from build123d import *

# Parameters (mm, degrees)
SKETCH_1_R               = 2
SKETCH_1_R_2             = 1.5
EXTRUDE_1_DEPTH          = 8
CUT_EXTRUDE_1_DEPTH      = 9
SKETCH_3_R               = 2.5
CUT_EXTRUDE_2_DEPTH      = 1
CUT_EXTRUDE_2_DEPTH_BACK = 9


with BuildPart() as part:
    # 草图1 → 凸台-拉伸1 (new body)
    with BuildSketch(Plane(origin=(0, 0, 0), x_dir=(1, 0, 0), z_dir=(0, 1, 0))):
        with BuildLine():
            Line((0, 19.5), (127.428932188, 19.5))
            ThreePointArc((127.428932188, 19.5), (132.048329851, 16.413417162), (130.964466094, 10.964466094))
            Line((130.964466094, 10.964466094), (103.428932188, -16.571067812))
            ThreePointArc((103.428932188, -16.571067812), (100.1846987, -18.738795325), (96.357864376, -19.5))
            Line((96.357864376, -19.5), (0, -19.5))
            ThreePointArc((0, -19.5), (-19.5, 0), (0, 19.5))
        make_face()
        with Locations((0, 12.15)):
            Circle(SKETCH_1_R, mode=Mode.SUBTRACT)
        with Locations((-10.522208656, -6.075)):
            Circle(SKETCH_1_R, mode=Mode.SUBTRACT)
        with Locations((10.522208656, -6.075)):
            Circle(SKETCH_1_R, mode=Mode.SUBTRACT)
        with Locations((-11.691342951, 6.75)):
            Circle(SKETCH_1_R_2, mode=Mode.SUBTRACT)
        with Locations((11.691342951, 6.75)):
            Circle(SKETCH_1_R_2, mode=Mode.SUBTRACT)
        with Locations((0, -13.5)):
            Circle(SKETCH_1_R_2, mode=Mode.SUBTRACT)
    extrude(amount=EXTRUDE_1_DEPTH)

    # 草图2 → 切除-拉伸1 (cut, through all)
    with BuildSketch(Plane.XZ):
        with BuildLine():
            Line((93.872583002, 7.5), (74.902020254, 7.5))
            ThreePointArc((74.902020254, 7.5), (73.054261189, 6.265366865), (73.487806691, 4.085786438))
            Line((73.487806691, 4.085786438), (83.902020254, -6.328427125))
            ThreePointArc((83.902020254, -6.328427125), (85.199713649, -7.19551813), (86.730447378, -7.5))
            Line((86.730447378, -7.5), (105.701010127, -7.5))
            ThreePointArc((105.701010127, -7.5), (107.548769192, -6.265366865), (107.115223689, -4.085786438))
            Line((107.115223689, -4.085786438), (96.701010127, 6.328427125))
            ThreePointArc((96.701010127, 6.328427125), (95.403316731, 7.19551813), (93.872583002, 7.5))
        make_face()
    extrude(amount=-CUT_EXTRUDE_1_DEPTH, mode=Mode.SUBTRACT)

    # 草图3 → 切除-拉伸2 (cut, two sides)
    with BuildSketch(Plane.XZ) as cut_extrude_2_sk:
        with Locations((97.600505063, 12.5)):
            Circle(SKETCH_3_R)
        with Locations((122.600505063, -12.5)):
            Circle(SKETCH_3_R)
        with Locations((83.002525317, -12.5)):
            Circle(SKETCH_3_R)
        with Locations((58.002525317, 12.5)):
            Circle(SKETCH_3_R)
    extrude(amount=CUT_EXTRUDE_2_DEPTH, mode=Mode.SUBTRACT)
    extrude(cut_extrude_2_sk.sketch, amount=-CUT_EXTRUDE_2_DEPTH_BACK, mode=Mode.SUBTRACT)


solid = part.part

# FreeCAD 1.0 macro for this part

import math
import FreeCAD as App
import Part
import Sketcher
Q = App.Units.Quantity

doc = App.newDocument("Part")
body = doc.addObject("PartDesign::Body", "Body")

sketch1 = body.newObject("Sketcher::SketchObject", "Sketch")
sketch1.AttachmentSupport = (doc.getObject("XZ_Plane"), [""])
sketch1.MapMode = "FlatFace"
sketch1.addGeometry([
    Part.LineSegment(App.Vector(127.428932, -19.5, 0), App.Vector(0, -19.5, 0)),
    Part.ArcOfCircle(Part.Circle(App.Vector(0, 0, 0), App.Vector(0, 0, 1), 19.5), math.radians(90), math.radians(270)),
    Part.LineSegment(App.Vector(0, 19.5, 0), App.Vector(96.357864, 19.5, 0)),
    Part.ArcOfCircle(Part.Circle(App.Vector(96.357864, 9.5, 0), App.Vector(0, 0, 1), 10), math.radians(45), math.radians(90)),
    Part.LineSegment(App.Vector(103.428932, 16.571068, 0), App.Vector(130.964466, -10.964466, 0)),
    Part.ArcOfCircle(Part.Circle(App.Vector(127.428932, -14.5, 0), App.Vector(0, 0, 1), 5), math.radians(-90), math.radians(45)),
    Part.Circle(App.Vector(10.522209, 6.075, 0), App.Vector(0, 0, 1), 2),
    Part.Circle(App.Vector(0, 13.5, 0), App.Vector(0, 0, 1), 1.5),
    Part.Circle(App.Vector(-10.522209, 6.075, 0), App.Vector(0, 0, 1), 2),
    Part.Circle(App.Vector(11.691343, -6.75, 0), App.Vector(0, 0, 1), 1.5),
    Part.Circle(App.Vector(-11.691343, -6.75, 0), App.Vector(0, 0, 1), 1.5),
    Part.Circle(App.Vector(0, -12.15, 0), App.Vector(0, 0, 1), 2),
], False)
sketch1.addConstraint([
    Sketcher.Constraint("Tangent", 0, 2, 1, 2),
    Sketcher.Constraint("Tangent", 1, 1, 2, 1),
    Sketcher.Constraint("Tangent", 2, 2, 3, 2),
    Sketcher.Constraint("Tangent", 3, 1, 4, 1),
    Sketcher.Constraint("Tangent", 4, 2, 5, 2),
    Sketcher.Constraint("Tangent", 5, 1, 0, 1),
    Sketcher.Constraint("Horizontal", 0),
    Sketcher.Constraint("Horizontal", 2),
    Sketcher.Constraint("Coincident", 1, 3, -1, 1),
    Sketcher.Constraint("Equal", 6, 8),
    Sketcher.Constraint("Equal", 7, 9),
    Sketcher.Constraint("Equal", 9, 10),
    Sketcher.Constraint("Equal", 8, 11),
    Sketcher.Constraint("Symmetric", 6, 3, 8, 3, -2),
    Sketcher.Constraint("Symmetric", 9, 3, 10, 3, -2),
    Sketcher.Constraint("PointOnObject", 7, 3, -2),
    Sketcher.Constraint("PointOnObject", 11, 3, -2),
    Sketcher.Constraint("Diameter", 6, Q("4 mm")),
    Sketcher.Constraint("Diameter", 7, Q("3 mm")),
    Sketcher.Constraint("Radius", 3, Q("10 mm")),
    Sketcher.Constraint("Radius", 5, Q("5 mm")),
    Sketcher.Constraint("Radius", 1, Q("19.5 mm")),
    Sketcher.Constraint("Angle", 4, Q("-45 deg")),
    Sketcher.Constraint("DistanceY", 3, 3, 7, 3, Q("4 mm")),
    Sketcher.Constraint("DistanceY", 11, 3, 9, 3, Q("5.4 mm")),
    Sketcher.Constraint("DistanceY", 9, 3, -1, 1, Q("6.75 mm")),
    Sketcher.Constraint("DistanceY", -1, 1, 6, 3, Q("6.075 mm")),
    Sketcher.Constraint("DistanceX", 0, 2, 0, 1, Q("127.428932 mm")),
    Sketcher.Constraint("DistanceX", -1, 1, 6, 3, Q("10.522209 mm")),
    Sketcher.Constraint("DistanceX", 8, 3, 9, 3, Q("22.213552 mm")),
])
pad1 = body.newObject("PartDesign::Pad", "Pad")
pad1.Profile = sketch1
pad1.Length = 8
pad1.Reversed = True

sketch2 = body.newObject("Sketcher::SketchObject", "Sketch001")
sketch2.AttachmentSupport = (doc.getObject("XZ_Plane"), [""])
sketch2.MapMode = "FlatFace"
sketch2.addGeometry([
    Part.LineSegment(App.Vector(93.872583, 7.5, 0), App.Vector(74.90202, 7.5, 0)),
    Part.ArcOfCircle(Part.Circle(App.Vector(74.90202, 5.5, 0), App.Vector(0, 0, 1), 2), math.radians(90), math.radians(225)),
    Part.LineSegment(App.Vector(73.487807, 4.085786, 0), App.Vector(83.90202, -6.328427, 0)),
    Part.ArcOfCircle(Part.Circle(App.Vector(86.730447, -3.5, 0), App.Vector(0, 0, 1), 4), math.radians(-135), math.radians(-90)),
    Part.LineSegment(App.Vector(86.730447, -7.5, 0), App.Vector(105.70101, -7.5, 0)),
    Part.ArcOfCircle(Part.Circle(App.Vector(105.70101, -5.5, 0), App.Vector(0, 0, 1), 2), math.radians(-90), math.radians(45)),
    Part.LineSegment(App.Vector(107.115224, -4.085786, 0), App.Vector(96.70101, 6.328427, 0)),
    Part.ArcOfCircle(Part.Circle(App.Vector(93.872583, 3.5, 0), App.Vector(0, 0, 1), 4), math.radians(45), math.radians(90)),
], False)
sketch2.addConstraint([
    Sketcher.Constraint("Tangent", 0, 2, 1, 1),
    Sketcher.Constraint("Tangent", 1, 2, 2, 1),
    Sketcher.Constraint("Tangent", 2, 2, 3, 1),
    Sketcher.Constraint("Tangent", 3, 2, 4, 1),
    Sketcher.Constraint("Tangent", 4, 2, 5, 1),
    Sketcher.Constraint("Tangent", 5, 2, 6, 1),
    Sketcher.Constraint("Tangent", 6, 2, 7, 1),
    Sketcher.Constraint("Tangent", 7, 2, 0, 1),
    Sketcher.Constraint("Horizontal", 0),
    Sketcher.Constraint("Horizontal", 4),
    Sketcher.Constraint("Equal", 1, 5),
    Sketcher.Constraint("Equal", 3, 7),
    Sketcher.Constraint("Parallel", 2, 6),
    Sketcher.Constraint("Radius", 1, Q("2 mm")),
    Sketcher.Constraint("Radius", 3, Q("4 mm")),
    Sketcher.Constraint("Angle", 2, Q("-45 deg")),
    Sketcher.Constraint("DistanceY", 3, 3, 1, 3, Q("9 mm")),
    Sketcher.Constraint("DistanceY", -1, 1, 1, 3, Q("5.5 mm")),
    Sketcher.Constraint("DistanceX", 0, 2, 0, 1, Q("18.970563 mm")),
    Sketcher.Constraint("DistanceX", -1, 1, 1, 3, Q("74.90202 mm")),
])
pocket1 = body.newObject("PartDesign::Pocket", "Pocket")
pocket1.Profile = sketch2
pocket1.Type = "ThroughAll"

sketch3 = body.newObject("Sketcher::SketchObject", "Sketch002")
sketch3.AttachmentSupport = (doc.getObject("XZ_Plane"), [""])
sketch3.MapMode = "FlatFace"
sketch3.addGeometry([
    Part.Circle(App.Vector(97.600505, 12.5, 0), App.Vector(0, 0, 1), 2.5),
    Part.Circle(App.Vector(122.600505, -12.5, 0), App.Vector(0, 0, 1), 2.5),
    Part.Circle(App.Vector(83.002525, -12.5, 0), App.Vector(0, 0, 1), 2.5),
    Part.Circle(App.Vector(58.002525, 12.5, 0), App.Vector(0, 0, 1), 2.5),
], False)
sketch3.addConstraint([
    Sketcher.Constraint("Equal", 0, 1),
    Sketcher.Constraint("Equal", 1, 2),
    Sketcher.Constraint("Equal", 2, 3),
    Sketcher.Constraint("Horizontal", 1, 3, 2, 3),
    Sketcher.Constraint("Horizontal", 0, 3, 3, 3),
    Sketcher.Constraint("Diameter", 0, Q("5 mm")),
    Sketcher.Constraint("DistanceX", 0, 3, 1, 3, Q("25 mm")),
    Sketcher.Constraint("DistanceY", 1, 3, 0, 3, Q("25 mm")),
    Sketcher.Constraint("DistanceX", 3, 3, 2, 3, Q("25 mm")),
    Sketcher.Constraint("DistanceY", -1, 1, 0, 3, Q("12.5 mm")),
    Sketcher.Constraint("DistanceX", 2, 3, 0, 3, Q("14.59798 mm")),
    Sketcher.Constraint("DistanceX", -1, 1, 0, 3, Q("97.600505 mm")),
])
pocket2 = body.newObject("PartDesign::Pocket", "Pocket001")
pocket2.Profile = sketch3
pocket2.Type = "ThroughAll"
pocket2.Midplane = True

doc.recompute()
